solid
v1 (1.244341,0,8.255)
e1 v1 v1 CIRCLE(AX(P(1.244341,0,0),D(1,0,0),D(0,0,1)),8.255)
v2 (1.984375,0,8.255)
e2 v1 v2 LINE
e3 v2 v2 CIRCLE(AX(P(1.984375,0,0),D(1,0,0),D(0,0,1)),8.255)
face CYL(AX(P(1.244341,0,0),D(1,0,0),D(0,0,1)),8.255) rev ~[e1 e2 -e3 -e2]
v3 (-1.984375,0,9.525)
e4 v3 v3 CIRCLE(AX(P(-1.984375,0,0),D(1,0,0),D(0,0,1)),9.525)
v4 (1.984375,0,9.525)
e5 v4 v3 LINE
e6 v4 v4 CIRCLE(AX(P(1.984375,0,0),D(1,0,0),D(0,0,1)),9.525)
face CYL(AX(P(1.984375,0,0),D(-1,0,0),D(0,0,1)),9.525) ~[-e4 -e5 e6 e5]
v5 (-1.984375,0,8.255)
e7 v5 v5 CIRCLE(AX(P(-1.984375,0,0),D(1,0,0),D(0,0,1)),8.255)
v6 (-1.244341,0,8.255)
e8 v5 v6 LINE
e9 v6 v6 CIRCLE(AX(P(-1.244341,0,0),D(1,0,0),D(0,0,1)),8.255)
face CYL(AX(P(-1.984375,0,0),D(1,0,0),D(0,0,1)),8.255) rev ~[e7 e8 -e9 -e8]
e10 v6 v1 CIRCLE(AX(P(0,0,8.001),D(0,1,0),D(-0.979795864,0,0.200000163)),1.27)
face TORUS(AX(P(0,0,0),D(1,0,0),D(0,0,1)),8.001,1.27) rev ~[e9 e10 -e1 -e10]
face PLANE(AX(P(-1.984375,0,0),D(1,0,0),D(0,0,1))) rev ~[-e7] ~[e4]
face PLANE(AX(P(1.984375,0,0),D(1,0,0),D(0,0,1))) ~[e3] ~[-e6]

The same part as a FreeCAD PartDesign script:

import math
import FreeCAD as App
import Part
import Sketcher

V = App.Vector
Q = App.Units.Quantity

doc = App.newDocument("Part")
body = doc.addObject("PartDesign::Body", "Body")

sketch1 = doc.addObject("Sketcher::SketchObject", "Sketch")
body.addObject(sketch1)
sketch1.AttachmentSupport = (doc.XZ_Plane, [""])
sketch1.MapMode = "FlatFace"
sketch1.addGeometry([
    Part.LineSegment(V(2, 9.5, 0), V(-2, 9.5, 0)),
    Part.LineSegment(V(-2, 9.5, 0), V(-2, 8.3, 0)),
    Part.LineSegment(V(-2, 8.3, 0), V(-1.2, 8.3, 0)),
    Part.ArcOfCircle(Part.Circle(V(0, 8, 0), V(0, 0, 1), 1.3), math.radians(12), math.radians(168)),
    Part.LineSegment(V(1.2, 8.3, 0), V(2, 8.3, 0)),
    Part.LineSegment(V(2, 8.3, 0), V(2, 9.5, 0)),
], False)
sketch1.addConstraint([
    Sketcher.Constraint("Coincident", 0, 2, 1, 1),
    Sketcher.Constraint("Coincident", 1, 2, 2, 1),
    Sketcher.Constraint("Coincident", 2, 2, 3, 2),
    Sketcher.Constraint("Coincident", 3, 1, 4, 1),
    Sketcher.Constraint("Coincident", 4, 2, 5, 1),
    Sketcher.Constraint("Coincident", 5, 2, 0, 1),
    Sketcher.Constraint("Horizontal", 0),
    Sketcher.Constraint("Vertical", 1),
    Sketcher.Constraint("Horizontal", 2),
    Sketcher.Constraint("Horizontal", 4),
    Sketcher.Constraint("Vertical", 5),
    Sketcher.Constraint("Symmetric", 2, 2, 3, 1, -2),
    Sketcher.Constraint("Equal", 2, 4),
    Sketcher.Constraint("Radius", 3, Q("0.05 in")),
    Sketcher.Constraint("DistanceY", 1, 2, 1, 1, Q("0.05 in")),
    Sketcher.Constraint("DistanceX", 0, 2, 0, 1, Q("0.15625 in")),
    Sketcher.Constraint("DistanceY", 3, 3, 0, 2, Q("0.06 in")),
    Sketcher.Constraint("DistanceY", -1, 1, 3, 3, Q("0.315 in")),
])
revolution = doc.addObject("PartDesign::Revolution", "Revolution")
body.addObject(revolution)
revolution.Profile = sketch1
revolution.ReferenceAxis = (sketch1, ["H_Axis"])
revolution.Angle = 360

doc.recompute()
